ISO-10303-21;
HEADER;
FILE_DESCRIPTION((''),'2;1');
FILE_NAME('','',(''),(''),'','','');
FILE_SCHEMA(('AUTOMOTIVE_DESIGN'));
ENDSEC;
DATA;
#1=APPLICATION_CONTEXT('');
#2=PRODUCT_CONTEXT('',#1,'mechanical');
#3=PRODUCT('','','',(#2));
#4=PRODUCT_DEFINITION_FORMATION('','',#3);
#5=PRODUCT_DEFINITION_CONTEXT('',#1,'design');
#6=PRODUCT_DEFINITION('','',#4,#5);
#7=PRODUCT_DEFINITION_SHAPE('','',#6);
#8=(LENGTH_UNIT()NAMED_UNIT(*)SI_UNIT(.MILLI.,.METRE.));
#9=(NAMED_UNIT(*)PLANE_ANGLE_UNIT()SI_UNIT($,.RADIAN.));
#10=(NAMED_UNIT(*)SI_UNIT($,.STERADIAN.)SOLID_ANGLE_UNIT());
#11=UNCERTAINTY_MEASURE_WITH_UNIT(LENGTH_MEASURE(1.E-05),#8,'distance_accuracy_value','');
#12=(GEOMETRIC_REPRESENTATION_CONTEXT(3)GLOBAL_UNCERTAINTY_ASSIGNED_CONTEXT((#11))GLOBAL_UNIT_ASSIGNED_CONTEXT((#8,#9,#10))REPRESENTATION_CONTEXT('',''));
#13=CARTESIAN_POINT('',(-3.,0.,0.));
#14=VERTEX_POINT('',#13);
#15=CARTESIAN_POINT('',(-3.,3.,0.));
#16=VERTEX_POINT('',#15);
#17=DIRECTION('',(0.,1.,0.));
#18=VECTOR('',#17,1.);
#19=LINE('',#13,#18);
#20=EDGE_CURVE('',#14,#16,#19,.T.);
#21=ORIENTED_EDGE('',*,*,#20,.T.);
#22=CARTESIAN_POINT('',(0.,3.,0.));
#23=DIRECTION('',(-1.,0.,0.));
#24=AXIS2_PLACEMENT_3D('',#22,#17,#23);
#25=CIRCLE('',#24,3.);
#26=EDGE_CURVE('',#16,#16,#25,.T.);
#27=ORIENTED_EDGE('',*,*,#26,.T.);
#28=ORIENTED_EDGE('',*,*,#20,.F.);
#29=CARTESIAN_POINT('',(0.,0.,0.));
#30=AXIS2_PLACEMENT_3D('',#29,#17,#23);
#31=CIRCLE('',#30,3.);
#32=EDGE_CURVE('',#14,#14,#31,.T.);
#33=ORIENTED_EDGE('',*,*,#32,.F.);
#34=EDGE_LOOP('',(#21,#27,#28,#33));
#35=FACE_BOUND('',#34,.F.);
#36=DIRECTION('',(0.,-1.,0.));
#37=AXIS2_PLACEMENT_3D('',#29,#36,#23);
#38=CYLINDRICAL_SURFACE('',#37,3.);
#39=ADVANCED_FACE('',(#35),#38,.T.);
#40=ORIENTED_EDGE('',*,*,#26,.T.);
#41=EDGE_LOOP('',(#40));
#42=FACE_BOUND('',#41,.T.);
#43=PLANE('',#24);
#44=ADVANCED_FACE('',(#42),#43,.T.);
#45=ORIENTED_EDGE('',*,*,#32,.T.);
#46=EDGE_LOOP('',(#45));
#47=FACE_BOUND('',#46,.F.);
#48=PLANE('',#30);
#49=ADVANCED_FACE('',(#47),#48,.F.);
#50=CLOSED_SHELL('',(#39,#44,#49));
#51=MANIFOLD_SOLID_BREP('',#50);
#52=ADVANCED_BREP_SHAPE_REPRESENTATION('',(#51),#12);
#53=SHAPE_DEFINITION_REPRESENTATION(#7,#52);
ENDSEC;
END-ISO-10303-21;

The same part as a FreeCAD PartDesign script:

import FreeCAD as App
import Part
import Sketcher

V = App.Vector
Q = App.Units.Quantity

doc = App.newDocument("Part")
body = doc.addObject("PartDesign::Body", "Body")

# Sketch on XZ plane
sketch1 = body.newObject("Sketcher::SketchObject", "Sketch")
sketch1.AttachmentSupport = (doc.getObject("XZ_Plane"), [""])
sketch1.MapMode = "FlatFace"
sketch1.addGeometry(Part.Circle(V(0, 0, 0), V(0, 0, 1), 3), False)
sketch1.addConstraint(Sketcher.Constraint("Coincident", 0, 3, -1, 1))
sketch1.addConstraint(Sketcher.Constraint("Diameter", 0, Q("6 mm")))
pad1 = body.newObject("PartDesign::Pad", "Pad")
pad1.Profile = sketch1
pad1.Length = 3
pad1.Reversed = True

doc.recompute()
